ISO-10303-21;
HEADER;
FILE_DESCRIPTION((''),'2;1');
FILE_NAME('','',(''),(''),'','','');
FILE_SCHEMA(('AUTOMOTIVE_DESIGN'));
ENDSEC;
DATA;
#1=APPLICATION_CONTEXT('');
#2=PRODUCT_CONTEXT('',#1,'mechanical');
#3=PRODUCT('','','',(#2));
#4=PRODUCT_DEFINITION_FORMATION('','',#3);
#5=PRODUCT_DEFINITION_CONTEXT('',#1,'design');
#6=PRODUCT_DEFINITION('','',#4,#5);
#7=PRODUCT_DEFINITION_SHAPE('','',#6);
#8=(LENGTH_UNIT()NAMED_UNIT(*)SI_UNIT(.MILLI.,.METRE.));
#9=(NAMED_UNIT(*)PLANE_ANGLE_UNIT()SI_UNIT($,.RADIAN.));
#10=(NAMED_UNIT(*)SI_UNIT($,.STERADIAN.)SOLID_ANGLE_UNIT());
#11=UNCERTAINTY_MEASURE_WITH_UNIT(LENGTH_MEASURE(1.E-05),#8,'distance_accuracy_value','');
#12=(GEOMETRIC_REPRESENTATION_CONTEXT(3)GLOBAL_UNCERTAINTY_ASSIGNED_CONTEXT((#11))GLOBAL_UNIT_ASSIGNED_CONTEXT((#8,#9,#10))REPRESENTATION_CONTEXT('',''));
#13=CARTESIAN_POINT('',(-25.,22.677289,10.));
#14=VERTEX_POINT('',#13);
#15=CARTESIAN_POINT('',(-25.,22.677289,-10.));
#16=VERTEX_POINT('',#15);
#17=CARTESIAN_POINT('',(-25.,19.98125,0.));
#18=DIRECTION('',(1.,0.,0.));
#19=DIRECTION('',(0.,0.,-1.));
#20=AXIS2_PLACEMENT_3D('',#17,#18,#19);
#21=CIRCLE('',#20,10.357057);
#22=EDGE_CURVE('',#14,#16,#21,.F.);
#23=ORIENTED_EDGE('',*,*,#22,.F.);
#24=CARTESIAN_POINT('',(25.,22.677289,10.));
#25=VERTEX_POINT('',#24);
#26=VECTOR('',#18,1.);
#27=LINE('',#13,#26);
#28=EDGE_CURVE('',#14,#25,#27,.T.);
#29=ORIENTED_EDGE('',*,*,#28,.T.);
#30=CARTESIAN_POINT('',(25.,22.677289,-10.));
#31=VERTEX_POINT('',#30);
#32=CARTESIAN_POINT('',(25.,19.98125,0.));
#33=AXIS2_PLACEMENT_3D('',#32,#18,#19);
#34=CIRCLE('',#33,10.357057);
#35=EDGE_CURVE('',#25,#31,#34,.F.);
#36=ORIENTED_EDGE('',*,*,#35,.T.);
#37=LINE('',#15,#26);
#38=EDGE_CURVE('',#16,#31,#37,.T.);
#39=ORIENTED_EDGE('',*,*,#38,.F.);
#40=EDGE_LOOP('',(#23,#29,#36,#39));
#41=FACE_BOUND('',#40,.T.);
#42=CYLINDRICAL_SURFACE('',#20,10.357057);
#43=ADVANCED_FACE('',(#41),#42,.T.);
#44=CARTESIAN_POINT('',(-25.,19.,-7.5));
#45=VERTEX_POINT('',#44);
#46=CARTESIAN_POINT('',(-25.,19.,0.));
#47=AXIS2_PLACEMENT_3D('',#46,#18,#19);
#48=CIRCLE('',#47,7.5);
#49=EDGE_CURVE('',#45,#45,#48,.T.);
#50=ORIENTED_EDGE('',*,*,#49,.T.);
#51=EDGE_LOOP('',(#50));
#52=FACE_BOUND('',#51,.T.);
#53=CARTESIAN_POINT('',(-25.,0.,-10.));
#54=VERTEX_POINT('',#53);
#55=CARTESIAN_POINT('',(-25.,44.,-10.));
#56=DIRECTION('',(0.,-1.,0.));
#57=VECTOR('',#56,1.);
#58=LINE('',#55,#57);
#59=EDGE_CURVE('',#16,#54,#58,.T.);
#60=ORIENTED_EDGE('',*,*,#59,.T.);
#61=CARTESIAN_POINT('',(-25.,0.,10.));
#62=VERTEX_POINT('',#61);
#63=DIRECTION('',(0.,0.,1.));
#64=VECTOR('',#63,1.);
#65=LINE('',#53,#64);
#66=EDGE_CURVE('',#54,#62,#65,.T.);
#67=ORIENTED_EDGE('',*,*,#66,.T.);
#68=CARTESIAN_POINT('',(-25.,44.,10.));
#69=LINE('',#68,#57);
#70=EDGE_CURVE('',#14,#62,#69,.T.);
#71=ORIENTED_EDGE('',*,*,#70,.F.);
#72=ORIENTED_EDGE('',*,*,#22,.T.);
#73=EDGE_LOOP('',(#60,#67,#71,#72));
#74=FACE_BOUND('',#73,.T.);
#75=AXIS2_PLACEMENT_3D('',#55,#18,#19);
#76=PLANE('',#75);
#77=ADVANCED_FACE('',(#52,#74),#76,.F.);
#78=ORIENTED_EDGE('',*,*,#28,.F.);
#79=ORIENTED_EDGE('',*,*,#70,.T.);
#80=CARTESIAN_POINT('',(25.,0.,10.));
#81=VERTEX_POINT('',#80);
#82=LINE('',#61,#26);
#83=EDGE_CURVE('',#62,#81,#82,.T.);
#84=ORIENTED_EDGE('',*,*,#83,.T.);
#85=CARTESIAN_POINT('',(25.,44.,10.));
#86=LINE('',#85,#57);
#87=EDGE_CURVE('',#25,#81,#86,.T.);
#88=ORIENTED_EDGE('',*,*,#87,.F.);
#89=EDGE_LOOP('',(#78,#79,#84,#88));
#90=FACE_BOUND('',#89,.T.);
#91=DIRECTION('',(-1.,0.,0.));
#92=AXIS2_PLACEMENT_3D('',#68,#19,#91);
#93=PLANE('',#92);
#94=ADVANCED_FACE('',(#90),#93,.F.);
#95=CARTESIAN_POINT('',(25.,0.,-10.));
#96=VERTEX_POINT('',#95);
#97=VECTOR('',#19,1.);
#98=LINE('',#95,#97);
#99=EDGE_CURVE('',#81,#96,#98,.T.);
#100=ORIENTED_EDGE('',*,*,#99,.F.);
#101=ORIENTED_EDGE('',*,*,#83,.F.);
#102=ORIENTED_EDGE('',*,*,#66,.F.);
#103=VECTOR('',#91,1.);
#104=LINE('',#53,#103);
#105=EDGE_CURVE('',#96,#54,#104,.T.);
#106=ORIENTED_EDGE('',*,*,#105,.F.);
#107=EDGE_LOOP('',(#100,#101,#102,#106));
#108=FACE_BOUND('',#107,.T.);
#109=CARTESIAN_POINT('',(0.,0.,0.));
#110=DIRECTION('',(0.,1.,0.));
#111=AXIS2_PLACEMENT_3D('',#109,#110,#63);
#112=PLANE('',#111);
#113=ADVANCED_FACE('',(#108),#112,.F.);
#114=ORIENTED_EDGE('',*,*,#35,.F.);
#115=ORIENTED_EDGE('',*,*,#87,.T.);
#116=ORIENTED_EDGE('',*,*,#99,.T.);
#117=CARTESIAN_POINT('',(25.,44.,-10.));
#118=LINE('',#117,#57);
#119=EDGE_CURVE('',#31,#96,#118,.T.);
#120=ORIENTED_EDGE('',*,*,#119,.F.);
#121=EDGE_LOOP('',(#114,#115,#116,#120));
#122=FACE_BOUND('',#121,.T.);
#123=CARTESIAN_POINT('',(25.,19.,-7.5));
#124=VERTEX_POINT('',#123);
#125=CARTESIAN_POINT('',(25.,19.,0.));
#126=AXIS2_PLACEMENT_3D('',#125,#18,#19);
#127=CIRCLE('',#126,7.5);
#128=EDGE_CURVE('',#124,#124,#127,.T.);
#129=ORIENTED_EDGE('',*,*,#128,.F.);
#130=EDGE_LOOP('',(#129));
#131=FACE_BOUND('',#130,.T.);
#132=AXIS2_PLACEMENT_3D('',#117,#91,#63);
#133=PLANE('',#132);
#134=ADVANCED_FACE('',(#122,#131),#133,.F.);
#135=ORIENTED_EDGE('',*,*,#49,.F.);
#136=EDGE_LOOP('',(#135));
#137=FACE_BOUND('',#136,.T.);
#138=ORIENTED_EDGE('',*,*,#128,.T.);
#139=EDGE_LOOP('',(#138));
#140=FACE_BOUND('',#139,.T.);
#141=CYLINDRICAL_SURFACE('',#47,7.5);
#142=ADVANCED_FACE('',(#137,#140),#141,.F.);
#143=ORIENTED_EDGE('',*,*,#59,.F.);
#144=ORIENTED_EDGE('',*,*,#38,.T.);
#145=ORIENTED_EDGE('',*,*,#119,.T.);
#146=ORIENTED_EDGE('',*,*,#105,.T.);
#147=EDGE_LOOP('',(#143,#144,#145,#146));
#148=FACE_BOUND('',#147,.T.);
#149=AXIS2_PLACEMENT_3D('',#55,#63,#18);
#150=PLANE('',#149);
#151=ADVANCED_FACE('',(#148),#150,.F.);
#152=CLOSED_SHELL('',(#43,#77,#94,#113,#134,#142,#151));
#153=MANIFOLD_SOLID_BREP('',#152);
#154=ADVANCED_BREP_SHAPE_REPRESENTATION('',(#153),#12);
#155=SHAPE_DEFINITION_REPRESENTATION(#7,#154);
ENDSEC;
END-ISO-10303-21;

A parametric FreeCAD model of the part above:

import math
import FreeCAD as App
import Part
import Sketcher

V = App.Vector
Q = App.Units.Quantity

doc = App.newDocument("Part")
body = doc.addObject("PartDesign::Body", "Body")

sketch1 = body.newObject("Sketcher::SketchObject", "Sketch")
sketch1.AttachmentSupport = (doc.getObject("XZ_Plane"), [""])
sketch1.MapMode = "FlatFace"
sketch1.addGeometry([
    Part.LineSegment(V(-25, -10, 0), V(-25, 10, 0)),
    Part.LineSegment(V(-25, 10, 0), V(25, 10, 0)),
    Part.LineSegment(V(25, 10, 0), V(25, -10, 0)),
    Part.LineSegment(V(25, -10, 0), V(-25, -10, 0)),
], False)
sketch1.addConstraint([
    Sketcher.Constraint("Coincident", 0, 2, 1, 1),
    Sketcher.Constraint("Coincident", 1, 2, 2, 1),
    Sketcher.Constraint("Coincident", 2, 2, 3, 1),
    Sketcher.Constraint("Coincident", 3, 2, 0, 1),
    Sketcher.Constraint("Vertical", 0),
    Sketcher.Constraint("Horizontal", 1),
    Sketcher.Constraint("Vertical", 2),
    Sketcher.Constraint("Horizontal", 3),
    Sketcher.Constraint("Symmetric", 0, 2, 2, 2, -1, 1),
    Sketcher.Constraint("DistanceX", 1, 1, 1, 2, Q("50 mm")),
    Sketcher.Constraint("DistanceY", 0, 1, 0, 2, Q("20 mm")),
])
pad1 = body.newObject("PartDesign::Pad", "Pad")
pad1.Profile = sketch1
pad1.Length = 44
pad1.Reversed = True

sketch2 = body.newObject("Sketcher::SketchObject", "Sketch001")
sketch2.AttachmentSupport = (doc.getObject("YZ_Plane"), [""])
sketch2.MapMode = "FlatFace"
sketch2.addGeometry(Part.Circle(V(19, 0, 0), V(0, 0, 1), 7.5), False)
sketch2.addConstraint([
    Sketcher.Constraint("PointOnObject", 0, 3, -1),
    Sketcher.Constraint("Diameter", 0, Q("15 mm")),
    Sketcher.Constraint("DistanceX", -1, 1, 0, 3, Q("19 mm")),
])
pocket1 = body.newObject("PartDesign::Pocket", "Pocket")
pocket1.Profile = sketch2
pocket1.Type = "ThroughAll"
pocket1.Midplane = True

sketch3 = body.newObject("Sketcher::SketchObject", "Sketch002")
sketch3.AttachmentSupport = (doc.getObject("YZ_Plane"), [""])
sketch3.MapMode = "FlatFace"
sketch3.addGeometry([
    Part.LineSegment(V(44, 10, 0), V(22.677289, 10, 0)),
    Part.ArcOfCircle(Part.Circle(V(19.98125, 0, 0), V(0, 0, 1), 10.357057), math.radians(-74.911581), math.radians(74.911581)),
    Part.LineSegment(V(22.677289, -10, 0), V(44, -10, 0)),
    Part.LineSegment(V(44, -10, 0), V(44, 10, 0)),
], False)
sketch3.addConstraint([
    Sketcher.Constraint("Coincident", 0, 2, 1, 2),
    Sketcher.Constraint("Coincident", 1, 1, 2, 1),
    Sketcher.Constraint("Coincident", 2, 2, 3, 1),
    Sketcher.Constraint("Coincident", 3, 2, 0, 1),
    Sketcher.Constraint("Horizontal", 0),
    Sketcher.Constraint("Horizontal", 2),
    Sketcher.Constraint("Vertical", 3),
    Sketcher.Constraint("Symmetric", 0, 2, 1, 1, -1),
    Sketcher.Constraint("DistanceY", 3, 1, 3, 2, Q("20 mm")),
    Sketcher.Constraint("DistanceX", -1, 1, 2, 2, Q("44 mm")),
    Sketcher.Constraint("Radius", 1, Q("10.357057 mm")),
    Sketcher.Constraint("DistanceX", 0, 2, 0, 1, Q("21.322711 mm")),
])
pocket2 = body.newObject("PartDesign::Pocket", "Pocket001")
pocket2.Profile = sketch3
pocket2.Type = "ThroughAll"
pocket2.Midplane = True

doc.recompute()
